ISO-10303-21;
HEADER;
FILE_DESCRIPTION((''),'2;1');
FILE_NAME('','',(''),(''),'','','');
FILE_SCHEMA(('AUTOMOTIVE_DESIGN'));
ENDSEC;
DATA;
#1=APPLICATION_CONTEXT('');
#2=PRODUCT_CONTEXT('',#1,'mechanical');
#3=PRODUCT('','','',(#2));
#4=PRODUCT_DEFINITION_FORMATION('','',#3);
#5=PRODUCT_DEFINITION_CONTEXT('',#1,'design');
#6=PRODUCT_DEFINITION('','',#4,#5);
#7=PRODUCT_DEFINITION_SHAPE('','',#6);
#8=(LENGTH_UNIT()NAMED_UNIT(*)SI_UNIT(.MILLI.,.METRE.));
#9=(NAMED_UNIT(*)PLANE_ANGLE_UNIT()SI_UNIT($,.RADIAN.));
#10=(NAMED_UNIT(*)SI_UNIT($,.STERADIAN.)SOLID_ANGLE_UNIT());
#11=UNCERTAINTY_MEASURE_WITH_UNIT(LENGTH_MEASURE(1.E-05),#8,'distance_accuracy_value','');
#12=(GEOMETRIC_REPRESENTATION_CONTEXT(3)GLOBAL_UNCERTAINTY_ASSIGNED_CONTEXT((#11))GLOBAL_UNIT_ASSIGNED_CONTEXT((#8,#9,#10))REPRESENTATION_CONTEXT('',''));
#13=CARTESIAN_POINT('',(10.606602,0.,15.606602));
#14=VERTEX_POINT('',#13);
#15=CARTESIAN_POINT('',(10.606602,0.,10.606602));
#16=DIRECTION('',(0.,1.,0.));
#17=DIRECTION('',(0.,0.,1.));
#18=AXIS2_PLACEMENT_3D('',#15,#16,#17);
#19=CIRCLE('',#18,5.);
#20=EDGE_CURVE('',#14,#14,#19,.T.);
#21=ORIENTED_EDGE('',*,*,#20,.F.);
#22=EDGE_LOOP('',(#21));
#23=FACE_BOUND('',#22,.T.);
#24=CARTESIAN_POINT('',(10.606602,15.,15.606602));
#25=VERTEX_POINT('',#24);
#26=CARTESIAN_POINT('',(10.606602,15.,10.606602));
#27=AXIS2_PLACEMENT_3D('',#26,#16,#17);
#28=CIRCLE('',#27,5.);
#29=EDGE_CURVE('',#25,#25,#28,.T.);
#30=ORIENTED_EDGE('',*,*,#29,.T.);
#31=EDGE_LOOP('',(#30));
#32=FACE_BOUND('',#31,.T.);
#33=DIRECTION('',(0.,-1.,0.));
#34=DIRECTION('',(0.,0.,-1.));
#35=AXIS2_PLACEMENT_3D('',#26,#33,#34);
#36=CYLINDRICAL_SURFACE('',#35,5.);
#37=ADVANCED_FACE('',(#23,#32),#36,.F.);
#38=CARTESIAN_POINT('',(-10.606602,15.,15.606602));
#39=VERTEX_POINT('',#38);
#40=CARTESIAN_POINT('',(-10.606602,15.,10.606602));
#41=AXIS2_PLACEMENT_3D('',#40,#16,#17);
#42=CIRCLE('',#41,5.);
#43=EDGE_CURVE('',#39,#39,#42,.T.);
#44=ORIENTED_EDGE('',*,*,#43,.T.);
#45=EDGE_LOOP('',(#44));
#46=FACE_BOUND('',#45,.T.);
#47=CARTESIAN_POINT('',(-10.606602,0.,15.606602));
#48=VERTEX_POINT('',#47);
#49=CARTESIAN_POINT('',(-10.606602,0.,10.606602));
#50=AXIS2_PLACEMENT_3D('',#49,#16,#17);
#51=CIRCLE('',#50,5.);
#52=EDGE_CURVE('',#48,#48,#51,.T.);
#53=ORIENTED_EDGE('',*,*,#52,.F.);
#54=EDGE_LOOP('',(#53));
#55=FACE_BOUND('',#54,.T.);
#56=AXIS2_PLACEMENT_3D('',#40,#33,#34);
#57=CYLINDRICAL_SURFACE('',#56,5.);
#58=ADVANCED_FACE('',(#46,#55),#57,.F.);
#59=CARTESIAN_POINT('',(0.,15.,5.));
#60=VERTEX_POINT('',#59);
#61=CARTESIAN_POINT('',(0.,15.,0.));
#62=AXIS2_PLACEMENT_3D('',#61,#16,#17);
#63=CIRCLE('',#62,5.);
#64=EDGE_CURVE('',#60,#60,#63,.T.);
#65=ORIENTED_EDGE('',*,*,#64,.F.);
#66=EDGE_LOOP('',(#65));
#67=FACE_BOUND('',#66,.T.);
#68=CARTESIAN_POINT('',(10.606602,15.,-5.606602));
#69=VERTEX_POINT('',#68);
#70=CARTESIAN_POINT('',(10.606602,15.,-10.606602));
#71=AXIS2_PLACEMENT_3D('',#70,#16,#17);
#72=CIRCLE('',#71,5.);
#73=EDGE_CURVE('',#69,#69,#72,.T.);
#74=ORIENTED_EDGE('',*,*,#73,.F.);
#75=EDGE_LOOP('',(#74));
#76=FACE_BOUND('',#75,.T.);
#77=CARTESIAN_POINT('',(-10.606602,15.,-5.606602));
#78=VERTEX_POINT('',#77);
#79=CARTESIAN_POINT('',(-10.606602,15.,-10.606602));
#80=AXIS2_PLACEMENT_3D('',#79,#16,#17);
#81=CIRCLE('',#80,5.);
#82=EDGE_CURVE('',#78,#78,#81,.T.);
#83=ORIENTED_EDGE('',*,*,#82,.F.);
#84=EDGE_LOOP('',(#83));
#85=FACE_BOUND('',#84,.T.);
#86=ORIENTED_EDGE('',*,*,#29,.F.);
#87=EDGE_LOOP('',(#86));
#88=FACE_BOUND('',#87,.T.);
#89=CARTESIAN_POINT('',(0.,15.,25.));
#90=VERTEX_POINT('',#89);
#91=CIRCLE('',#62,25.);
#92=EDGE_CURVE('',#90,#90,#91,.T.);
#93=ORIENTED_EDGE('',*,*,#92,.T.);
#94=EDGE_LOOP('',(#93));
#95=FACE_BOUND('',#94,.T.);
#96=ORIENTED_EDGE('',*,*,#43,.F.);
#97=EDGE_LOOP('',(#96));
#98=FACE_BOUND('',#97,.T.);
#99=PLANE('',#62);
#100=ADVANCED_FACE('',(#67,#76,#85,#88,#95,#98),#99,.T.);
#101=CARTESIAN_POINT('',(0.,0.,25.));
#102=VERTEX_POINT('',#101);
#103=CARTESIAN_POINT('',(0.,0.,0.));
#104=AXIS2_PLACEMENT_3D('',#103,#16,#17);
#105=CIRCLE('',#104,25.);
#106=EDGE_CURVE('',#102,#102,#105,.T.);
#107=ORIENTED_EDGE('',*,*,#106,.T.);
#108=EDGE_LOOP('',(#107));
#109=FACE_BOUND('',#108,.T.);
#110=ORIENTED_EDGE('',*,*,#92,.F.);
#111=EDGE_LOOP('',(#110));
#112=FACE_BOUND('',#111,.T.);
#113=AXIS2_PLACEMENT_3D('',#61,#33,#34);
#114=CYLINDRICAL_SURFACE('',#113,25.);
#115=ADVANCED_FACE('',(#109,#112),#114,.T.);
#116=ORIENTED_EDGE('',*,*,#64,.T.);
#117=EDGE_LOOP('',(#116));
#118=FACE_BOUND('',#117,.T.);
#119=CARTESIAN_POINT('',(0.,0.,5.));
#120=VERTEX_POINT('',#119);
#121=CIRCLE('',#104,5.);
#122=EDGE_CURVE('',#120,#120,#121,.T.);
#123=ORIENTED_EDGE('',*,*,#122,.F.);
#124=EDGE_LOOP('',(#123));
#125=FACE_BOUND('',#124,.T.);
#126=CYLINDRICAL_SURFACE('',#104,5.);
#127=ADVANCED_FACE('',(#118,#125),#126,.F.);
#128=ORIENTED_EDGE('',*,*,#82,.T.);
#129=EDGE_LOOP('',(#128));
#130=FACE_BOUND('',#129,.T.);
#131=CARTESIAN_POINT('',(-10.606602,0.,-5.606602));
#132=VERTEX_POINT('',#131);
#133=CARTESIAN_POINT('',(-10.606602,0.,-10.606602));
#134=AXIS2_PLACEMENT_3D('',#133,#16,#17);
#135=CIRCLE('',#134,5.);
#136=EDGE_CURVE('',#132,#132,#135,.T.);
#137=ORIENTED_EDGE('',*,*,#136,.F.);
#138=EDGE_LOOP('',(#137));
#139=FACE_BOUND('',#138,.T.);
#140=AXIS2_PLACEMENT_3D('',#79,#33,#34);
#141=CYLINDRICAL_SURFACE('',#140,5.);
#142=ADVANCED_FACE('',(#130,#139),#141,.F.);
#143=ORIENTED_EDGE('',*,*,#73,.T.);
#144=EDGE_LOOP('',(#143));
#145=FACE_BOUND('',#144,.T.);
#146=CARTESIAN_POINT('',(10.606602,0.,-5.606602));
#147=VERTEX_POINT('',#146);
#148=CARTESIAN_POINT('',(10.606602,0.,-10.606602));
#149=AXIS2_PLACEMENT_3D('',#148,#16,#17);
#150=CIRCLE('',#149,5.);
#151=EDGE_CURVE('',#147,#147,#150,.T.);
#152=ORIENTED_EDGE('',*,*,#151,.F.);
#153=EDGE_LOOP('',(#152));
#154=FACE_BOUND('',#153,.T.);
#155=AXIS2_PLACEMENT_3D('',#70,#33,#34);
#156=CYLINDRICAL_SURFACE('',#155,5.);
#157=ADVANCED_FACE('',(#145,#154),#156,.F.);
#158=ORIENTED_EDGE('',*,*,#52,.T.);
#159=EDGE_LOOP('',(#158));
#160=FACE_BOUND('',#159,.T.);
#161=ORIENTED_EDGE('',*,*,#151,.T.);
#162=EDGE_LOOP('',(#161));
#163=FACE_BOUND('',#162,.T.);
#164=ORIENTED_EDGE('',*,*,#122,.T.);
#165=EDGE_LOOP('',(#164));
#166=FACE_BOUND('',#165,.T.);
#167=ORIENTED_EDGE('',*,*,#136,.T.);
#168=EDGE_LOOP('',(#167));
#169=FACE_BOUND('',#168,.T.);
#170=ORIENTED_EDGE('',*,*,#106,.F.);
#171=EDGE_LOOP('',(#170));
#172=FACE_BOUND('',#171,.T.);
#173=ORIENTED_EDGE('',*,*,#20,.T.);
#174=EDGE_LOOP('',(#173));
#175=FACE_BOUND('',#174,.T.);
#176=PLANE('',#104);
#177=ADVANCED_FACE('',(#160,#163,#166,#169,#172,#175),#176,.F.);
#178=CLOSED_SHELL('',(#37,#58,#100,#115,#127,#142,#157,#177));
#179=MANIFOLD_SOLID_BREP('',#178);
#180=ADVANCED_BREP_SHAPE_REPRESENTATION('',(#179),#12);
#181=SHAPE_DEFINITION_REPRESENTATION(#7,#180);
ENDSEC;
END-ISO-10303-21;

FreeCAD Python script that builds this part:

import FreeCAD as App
import Part
import Sketcher

doc = App.newDocument("Part")
params = doc.addObject("Spreadsheet::Sheet", "Params")
for row, (alias, value) in enumerate([
    ("sketch1_diameter", "50 mm"),
    ("sketch1_diameter2", "10 mm"),
    ("pad1_length", "15 mm"),
    ("sketch2_diameter", "10 mm"),
], start=1):
    params.set(f"A{row}", alias)
    params.set(f"B{row}", "=" + value)
    params.setAlias(f"B{row}", alias)

body = doc.addObject("PartDesign::Body", "Body")

sketch1 = body.newObject("Sketcher::SketchObject", "Sketch")
sketch1.AttachmentSupport = (doc.getObject("XZ_Plane"), [""])
sketch1.MapMode = "FlatFace"
sketch1.addGeometry([
    Part.Circle(App.Vector(0, 0, 0), App.Vector(0, 0, 1), 25),
    Part.Circle(App.Vector(-10.606602, -10.606602, 0), App.Vector(0, 0, 1), 5),
    Part.Circle(App.Vector(-10.606602, 10.606602, 0), App.Vector(0, 0, 1), 5),
    Part.Circle(App.Vector(10.606602, -10.606602, 0), App.Vector(0, 0, 1), 5),
    Part.Circle(App.Vector(10.606602, 10.606602, 0), App.Vector(0, 0, 1), 5),
], False)
sketch1.addConstraint([
    Sketcher.Constraint("Coincident", 0, 3, -1, 1),
    Sketcher.Constraint("Equal", 1, 2),
    Sketcher.Constraint("Equal", 2, 3),
    Sketcher.Constraint("Equal", 3, 4),
    Sketcher.Constraint("Symmetric", 2, 3, 3, 3, -1, 1),
    Sketcher.Constraint("Symmetric", 1, 3, 4, 3, -1, 1),
    Sketcher.Constraint("Symmetric", 1, 3, 3, 3, -2),
    Sketcher.Constraint("Diameter", 0, 50.0),
    Sketcher.Constraint("Diameter", 1, 10.0),
    Sketcher.Constraint("DistanceX", 1, 3, -1, 1, 10.606602),
    Sketcher.Constraint("DistanceY", 1, 3, -1, 1, 10.606602),
])
sketch1.setExpression("Constraints[7]", "Params.sketch1_diameter")
sketch1.setExpression("Constraints[8]", "Params.sketch1_diameter2")
pad1 = body.newObject("PartDesign::Pad", "Pad")
pad1.Profile = sketch1
pad1.setExpression("Length", "Params.pad1_length")
pad1.Reversed = True

sketch2 = body.newObject("Sketcher::SketchObject", "Sketch001")
sketch2.AttachmentSupport = (doc.getObject("XZ_Plane"), [""])
sketch2.MapMode = "FlatFace"
sketch2.AttachmentOffset = App.Placement(App.Vector(0, 0, -15), App.Rotation())
sketch2.addGeometry(Part.Circle(App.Vector(0, 0, 0), App.Vector(0, 0, 1), 5), False)
sketch2.addConstraint([
    Sketcher.Constraint("Coincident", 0, 3, -1, 1),
    Sketcher.Constraint("Diameter", 0, 10.0),
])
sketch2.setExpression("Constraints[1]", "Params.sketch2_diameter")
pocket1 = body.newObject("PartDesign::Pocket", "Pocket")
pocket1.Profile = sketch2
pocket1.Type = "ThroughAll"
pocket1.Reversed = True

doc.recompute()
